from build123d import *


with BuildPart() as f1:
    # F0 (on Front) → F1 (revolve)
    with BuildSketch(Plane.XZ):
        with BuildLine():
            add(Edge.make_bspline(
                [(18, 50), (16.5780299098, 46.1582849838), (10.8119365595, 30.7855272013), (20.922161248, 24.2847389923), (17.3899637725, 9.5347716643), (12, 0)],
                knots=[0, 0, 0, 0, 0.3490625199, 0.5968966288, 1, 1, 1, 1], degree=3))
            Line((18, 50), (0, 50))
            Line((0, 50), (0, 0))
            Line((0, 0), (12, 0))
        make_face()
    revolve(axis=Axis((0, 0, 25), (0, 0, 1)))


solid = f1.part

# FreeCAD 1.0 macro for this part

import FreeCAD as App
import Part
import Sketcher
from FreeCAD import Vector

doc = App.newDocument("Part")
body = doc.addObject("PartDesign::Body", "Body")

sketch1 = doc.addObject("Sketcher::SketchObject", "Sketch")
body.addObject(sketch1)
sketch1.AttachmentSupport = (doc.XZ_Plane, [""])
sketch1.MapMode = "FlatFace"
sketch1.addGeometry(Part.BSplineCurve([Vector(18, 50, 0), Vector(16.57803, 46.158285, 0), Vector(10.811937, 30.785527, 0), Vector(20.922161, 24.284739, 0), Vector(17.389964, 9.534772, 0), Vector(12, 0, 0)], [4, 1, 1, 4], [0, 0.34906252, 0.596896629, 1], False, 3, [1, 1, 1, 1, 1, 1], False), False)
sketch1.addGeometry(Part.LineSegment(Vector(18, 50, 0), Vector(0, 50, 0)), False)
sketch1.addGeometry(Part.LineSegment(Vector(0, 50, 0), Vector(0, 0, 0)), False)
sketch1.addGeometry(Part.LineSegment(Vector(0, 0, 0), Vector(12, 0, 0)), False)
sketch1.addConstraint(Sketcher.Constraint("Block", 0))
sketch1.addConstraint(Sketcher.Constraint("Coincident", 0, 1, 1, 1))
sketch1.addConstraint(Sketcher.Constraint("Coincident", 1, 2, 2, 1))
sketch1.addConstraint(Sketcher.Constraint("Coincident", 2, 2, 3, 1))
sketch1.addConstraint(Sketcher.Constraint("Coincident", 3, 2, 0, 2))
sketch1.addConstraint(Sketcher.Constraint("Horizontal", 1))
sketch1.addConstraint(Sketcher.Constraint("Vertical", 2))
sketch1.addConstraint(Sketcher.Constraint("Horizontal", 3))
sketch1.addConstraint(Sketcher.Constraint("PointOnObject", 1, 2, -2))
revolution = doc.addObject("PartDesign::Revolution", "Revolution")
body.addObject(revolution)
revolution.Profile = sketch1
revolution.ReferenceAxis = (sketch1, ["V_Axis"])
revolution.Angle = 360

doc.recompute()
